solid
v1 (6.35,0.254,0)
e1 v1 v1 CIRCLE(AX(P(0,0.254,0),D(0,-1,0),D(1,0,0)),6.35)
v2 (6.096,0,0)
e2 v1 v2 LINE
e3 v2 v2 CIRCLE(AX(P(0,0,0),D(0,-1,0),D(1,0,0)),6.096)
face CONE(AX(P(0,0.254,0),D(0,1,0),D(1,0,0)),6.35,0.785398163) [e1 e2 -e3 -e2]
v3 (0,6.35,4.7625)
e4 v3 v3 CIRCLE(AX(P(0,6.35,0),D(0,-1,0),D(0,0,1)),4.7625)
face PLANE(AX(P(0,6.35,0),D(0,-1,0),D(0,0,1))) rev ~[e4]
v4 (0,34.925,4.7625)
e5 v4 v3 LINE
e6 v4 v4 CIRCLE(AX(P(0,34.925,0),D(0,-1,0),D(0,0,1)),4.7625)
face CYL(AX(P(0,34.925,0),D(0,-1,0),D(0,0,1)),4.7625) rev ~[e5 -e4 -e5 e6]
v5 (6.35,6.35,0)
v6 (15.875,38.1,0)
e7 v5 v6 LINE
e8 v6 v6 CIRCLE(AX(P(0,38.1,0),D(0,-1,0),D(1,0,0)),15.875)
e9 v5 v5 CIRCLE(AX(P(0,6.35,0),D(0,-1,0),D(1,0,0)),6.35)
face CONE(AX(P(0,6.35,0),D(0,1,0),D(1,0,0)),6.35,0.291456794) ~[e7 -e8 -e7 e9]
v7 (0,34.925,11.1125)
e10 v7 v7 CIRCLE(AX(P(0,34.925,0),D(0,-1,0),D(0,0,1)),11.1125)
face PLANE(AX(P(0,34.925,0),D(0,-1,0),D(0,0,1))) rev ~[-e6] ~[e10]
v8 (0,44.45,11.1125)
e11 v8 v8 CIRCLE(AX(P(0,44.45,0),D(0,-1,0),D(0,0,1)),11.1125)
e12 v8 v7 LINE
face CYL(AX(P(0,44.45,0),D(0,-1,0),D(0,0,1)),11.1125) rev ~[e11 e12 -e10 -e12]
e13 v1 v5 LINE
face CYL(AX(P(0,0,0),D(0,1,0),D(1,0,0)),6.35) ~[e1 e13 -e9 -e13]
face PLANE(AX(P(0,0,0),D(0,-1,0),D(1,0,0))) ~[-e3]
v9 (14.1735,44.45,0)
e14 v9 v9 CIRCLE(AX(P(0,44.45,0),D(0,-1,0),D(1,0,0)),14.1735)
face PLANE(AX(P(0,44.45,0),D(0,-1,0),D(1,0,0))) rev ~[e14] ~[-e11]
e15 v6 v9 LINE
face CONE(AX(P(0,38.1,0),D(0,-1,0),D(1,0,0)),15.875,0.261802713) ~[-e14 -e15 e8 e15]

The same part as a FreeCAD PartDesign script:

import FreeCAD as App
import Part
import Sketcher
Q = App.Units.Quantity


def edges_at(feature, points):
    """Names of the edges that pass closest to the given points."""
    edges = feature.Shape.Edges
    near = lambda p: min(range(len(edges)), key=lambda i: edges[i].distToShape(Part.Vertex(*p))[0])
    return sorted({f"Edge{near(p) + 1}" for p in points})


def add_polygon(sketch, points):
    """Adds a closed chain of lines whose ends are joined by coincident constraints."""
    first, n = sketch.GeometryCount, len(points)
    for a, b in zip(points, points[1:] + points[:1]):
        sketch.addGeometry(Part.LineSegment(App.Vector(*a, 0), App.Vector(*b, 0)), False)
    for i in range(n):
        sketch.addConstraint(Sketcher.Constraint("Coincident", first + i, 2, first + (i + 1) % n, 1))

doc = App.newDocument("Part")
params = doc.addObject("Spreadsheet::Sheet", "Params")
for row, (alias, value) in enumerate([
    ("sketch1_width", "0.25 in"),
    ("sketch1_height", "1.75 in"),
    ("revolution_angle", "360 deg"),
    ("sketch2_diameter", "0.375 in"),
    ("hole_diameter", "0.375 in"),
    ("hole_depth", "1.5 in"),
    ("hole_cbore_diameter", "0.875 in"),
    ("hole_cbore_depth", "0.375 in"),
    ("chamfer_size", "0.01 in"),
], start=1):
    params.set(f"A{row}", alias)
    params.set(f"B{row}", "=" + value)
    params.setAlias(f"B{row}", alias)

body = doc.addObject("PartDesign::Body", "Body")

# Sketch on XY plane
sketch1 = body.newObject("Sketcher::SketchObject", "Sketch")
sketch1.AttachmentSupport = (doc.getObject("XY_Plane"), [""])
sketch1.MapMode = "FlatFace"
add_polygon(sketch1, [(0, 44), (0, 0), (6, 0), (6, 6), (16, 38), (14, 44)])  # lines 0-5
sketch1.addConstraint(Sketcher.Constraint("Vertical", 0))
sketch1.addConstraint(Sketcher.Constraint("Horizontal", 1))
sketch1.addConstraint(Sketcher.Constraint("Vertical", 2))
sketch1.addConstraint(Sketcher.Constraint("Horizontal", 5))
sketch1.addConstraint(Sketcher.Constraint("Coincident", 0, 2, -1, 1))
sketch1.addConstraint(Sketcher.Constraint("Equal", 1, 2))
sketch1.addConstraint(Sketcher.Constraint("DistanceX", 1, 1, 1, 2, Q("0.25 in")))
sketch1.addConstraint(Sketcher.Constraint("DistanceY", 0, 2, 0, 1, Q("1.75 in")))
sketch1.addConstraint(Sketcher.Constraint("DistanceY", -1, 1, 3, 2, Q("1.5 in")))
sketch1.addConstraint(Sketcher.Constraint("DistanceX", -1, 1, 3, 2, Q("0.625 in")))
sketch1.addConstraint(Sketcher.Constraint("Angle", 4, Q("105.0002 deg")))
sketch1.setExpression("Constraints[12]", "Params.sketch1_width")
sketch1.setExpression("Constraints[13]", "Params.sketch1_height")
revolution = body.newObject("PartDesign::Revolution", "Revolution")
revolution.Profile = sketch1
revolution.ReferenceAxis = (sketch1, ["V_Axis"])
revolution.setExpression("Angle", "Params.revolution_angle")

# Sketch on XZ plane
sketch2 = body.newObject("Sketcher::SketchObject", "Sketch001")
sketch2.AttachmentSupport = (doc.getObject("XZ_Plane"), [""])
sketch2.MapMode = "FlatFace"
sketch2.AttachmentOffset = App.Placement(App.Vector(0, 0, -1.75 * 25.4), App.Rotation())
sketch2.addGeometry(Part.Circle(App.Vector(0, 0, 0), App.Vector(0, 0, 1), 4.8), False)
sketch2.addConstraint(Sketcher.Constraint("Coincident", 0, 3, -1, 1))
sketch2.addConstraint(Sketcher.Constraint("Diameter", 0, Q("0.375 in")))
sketch2.setExpression("Constraints[1]", "Params.sketch2_diameter")
doc.recompute()
hole = body.newObject("PartDesign::Hole", "Hole")
hole.Profile = sketch2
hole.ThreadType = "None"
hole.setExpression("Diameter", "Params.hole_diameter")
hole.DepthType = "Dimension"
hole.setExpression("Depth", "Params.hole_depth")
hole.DrillPoint = "Flat"
hole.HoleCutType = "Counterbore"
hole.setExpression("HoleCutDiameter", "Params.hole_cbore_diameter")
hole.setExpression("HoleCutDepth", "Params.hole_cbore_depth")
hole.Reversed = True
doc.recompute()

chamfer = body.newObject("PartDesign::Chamfer", "Chamfer")
chamfer.Base = (hole, edges_at(hole, [(-6.35, 0, 0)]))
chamfer.setExpression("Size", "Params.chamfer_size")

doc.recompute()
